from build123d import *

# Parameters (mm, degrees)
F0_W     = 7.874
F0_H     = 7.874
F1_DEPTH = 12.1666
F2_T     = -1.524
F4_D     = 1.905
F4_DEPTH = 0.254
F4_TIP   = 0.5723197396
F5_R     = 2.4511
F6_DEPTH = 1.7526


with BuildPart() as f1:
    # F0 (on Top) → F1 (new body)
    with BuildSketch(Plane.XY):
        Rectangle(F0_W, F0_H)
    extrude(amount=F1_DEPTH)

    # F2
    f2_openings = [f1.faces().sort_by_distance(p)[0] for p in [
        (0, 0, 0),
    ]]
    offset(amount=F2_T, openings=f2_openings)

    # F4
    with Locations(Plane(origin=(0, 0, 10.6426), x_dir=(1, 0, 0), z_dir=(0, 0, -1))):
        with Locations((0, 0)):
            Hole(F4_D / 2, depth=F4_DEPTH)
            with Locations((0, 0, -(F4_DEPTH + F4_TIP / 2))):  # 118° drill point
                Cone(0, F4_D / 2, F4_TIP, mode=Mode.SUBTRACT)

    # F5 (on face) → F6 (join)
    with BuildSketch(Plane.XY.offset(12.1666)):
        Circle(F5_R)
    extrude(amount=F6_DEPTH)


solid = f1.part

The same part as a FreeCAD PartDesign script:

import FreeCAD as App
import Part
import Sketcher
from FreeCAD import Vector
Q = App.Units.Quantity


def faces_at(feature, points):
    """Names of the faces that lie closest to the given points."""
    faces = feature.Shape.Faces
    near = lambda p: min(range(len(faces)), key=lambda i: faces[i].distToShape(Part.Vertex(*p))[0])
    return sorted({f"Face{near(p) + 1}" for p in points})


def add_polygon(sketch, points):
    """Adds a closed chain of lines whose ends are joined by coincident constraints."""
    first, n = sketch.GeometryCount, len(points)
    for a, b in zip(points, points[1:] + points[:1]):
        sketch.addGeometry(Part.LineSegment(App.Vector(*a, 0), App.Vector(*b, 0)), False)
    for i in range(n):
        sketch.addConstraint(Sketcher.Constraint("Coincident", first + i, 2, first + (i + 1) % n, 1))

doc = App.newDocument("Part")
body = doc.addObject("PartDesign::Body", "Body")

# Sketch on XY plane
sketch1 = doc.addObject("Sketcher::SketchObject", "Sketch")
body.addObject(sketch1)
sketch1.AttachmentSupport = (doc.XY_Plane, [""])
sketch1.MapMode = "FlatFace"
add_polygon(sketch1, [(-3.937, 3.937), (-3.937, -3.937), (3.937, -3.937), (3.937, 3.937)])  # lines 0-3
sketch1.addConstraint([
    Sketcher.Constraint("Vertical", 0),
    Sketcher.Constraint("Horizontal", 1),
    Sketcher.Constraint("Vertical", 2),
    Sketcher.Constraint("Horizontal", 3),
    Sketcher.Constraint("Symmetric", 0, 2, 2, 2, -1, 1),
    Sketcher.Constraint("Equal", 3, 0),
    Sketcher.Constraint("DistanceX", 1, 1, 1, 2, Q("0.31 in")),
])
pad1 = doc.addObject("PartDesign::Pad", "Pad")
body.addObject(pad1)
pad1.Profile = sketch1
pad1.Length = Q("0.479 in")
doc.recompute()

thickness = doc.addObject("PartDesign::Thickness", "Thickness")
body.addObject(thickness)
thickness.Base = (pad1, faces_at(pad1, [(0, 0, 0)]))
thickness.Value = Q("0.06 in")
thickness.Reversed = True
thickness.Join = "Arc"

# Sketch on XY plane
sketch2 = doc.addObject("Sketcher::SketchObject", "Sketch001")
body.addObject(sketch2)
sketch2.AttachmentSupport = (doc.XY_Plane, [""])
sketch2.MapMode = "FlatFace"
sketch2.AttachmentOffset = App.Placement(Vector(0, 0, 0.419 * 25.4), App.Rotation())
sketch2.addGeometry(Part.Circle(Vector(0, 0, 0), Vector(0, 0, 1), 0.9525), False)
sketch2.addConstraint([
    Sketcher.Constraint("Coincident", 0, 3, -1, 1),
    Sketcher.Constraint("Diameter", 0, Q("0.075 in")),
])
doc.recompute()
hole = doc.addObject("PartDesign::Hole", "Hole")
body.addObject(hole)
hole.Profile = sketch2
hole.ThreadType = "None"
hole.Diameter = Q("0.075 in")
hole.DepthType = "Dimension"
hole.Depth = Q("0.01 in")
hole.DrillPoint = "Angled"
hole.DrillPointAngle = 118
hole.Reversed = True

# Sketch on XY plane
sketch3 = doc.addObject("Sketcher::SketchObject", "Sketch002")
body.addObject(sketch3)
sketch3.AttachmentSupport = (doc.XY_Plane, [""])
sketch3.MapMode = "FlatFace"
sketch3.AttachmentOffset = App.Placement(Vector(0, 0, 0.479 * 25.4), App.Rotation())
sketch3.addGeometry(Part.Circle(Vector(0, 0, 0), Vector(0, 0, 1), 2.4511), False)
sketch3.addConstraint([
    Sketcher.Constraint("Coincident", 0, 3, -1, 1),
    Sketcher.Constraint("Diameter", 0, Q("0.193 in")),
])
pad2 = doc.addObject("PartDesign::Pad", "Pad001")
body.addObject(pad2)
pad2.Profile = sketch3
pad2.Length = Q("0.069 in")

doc.recompute()
